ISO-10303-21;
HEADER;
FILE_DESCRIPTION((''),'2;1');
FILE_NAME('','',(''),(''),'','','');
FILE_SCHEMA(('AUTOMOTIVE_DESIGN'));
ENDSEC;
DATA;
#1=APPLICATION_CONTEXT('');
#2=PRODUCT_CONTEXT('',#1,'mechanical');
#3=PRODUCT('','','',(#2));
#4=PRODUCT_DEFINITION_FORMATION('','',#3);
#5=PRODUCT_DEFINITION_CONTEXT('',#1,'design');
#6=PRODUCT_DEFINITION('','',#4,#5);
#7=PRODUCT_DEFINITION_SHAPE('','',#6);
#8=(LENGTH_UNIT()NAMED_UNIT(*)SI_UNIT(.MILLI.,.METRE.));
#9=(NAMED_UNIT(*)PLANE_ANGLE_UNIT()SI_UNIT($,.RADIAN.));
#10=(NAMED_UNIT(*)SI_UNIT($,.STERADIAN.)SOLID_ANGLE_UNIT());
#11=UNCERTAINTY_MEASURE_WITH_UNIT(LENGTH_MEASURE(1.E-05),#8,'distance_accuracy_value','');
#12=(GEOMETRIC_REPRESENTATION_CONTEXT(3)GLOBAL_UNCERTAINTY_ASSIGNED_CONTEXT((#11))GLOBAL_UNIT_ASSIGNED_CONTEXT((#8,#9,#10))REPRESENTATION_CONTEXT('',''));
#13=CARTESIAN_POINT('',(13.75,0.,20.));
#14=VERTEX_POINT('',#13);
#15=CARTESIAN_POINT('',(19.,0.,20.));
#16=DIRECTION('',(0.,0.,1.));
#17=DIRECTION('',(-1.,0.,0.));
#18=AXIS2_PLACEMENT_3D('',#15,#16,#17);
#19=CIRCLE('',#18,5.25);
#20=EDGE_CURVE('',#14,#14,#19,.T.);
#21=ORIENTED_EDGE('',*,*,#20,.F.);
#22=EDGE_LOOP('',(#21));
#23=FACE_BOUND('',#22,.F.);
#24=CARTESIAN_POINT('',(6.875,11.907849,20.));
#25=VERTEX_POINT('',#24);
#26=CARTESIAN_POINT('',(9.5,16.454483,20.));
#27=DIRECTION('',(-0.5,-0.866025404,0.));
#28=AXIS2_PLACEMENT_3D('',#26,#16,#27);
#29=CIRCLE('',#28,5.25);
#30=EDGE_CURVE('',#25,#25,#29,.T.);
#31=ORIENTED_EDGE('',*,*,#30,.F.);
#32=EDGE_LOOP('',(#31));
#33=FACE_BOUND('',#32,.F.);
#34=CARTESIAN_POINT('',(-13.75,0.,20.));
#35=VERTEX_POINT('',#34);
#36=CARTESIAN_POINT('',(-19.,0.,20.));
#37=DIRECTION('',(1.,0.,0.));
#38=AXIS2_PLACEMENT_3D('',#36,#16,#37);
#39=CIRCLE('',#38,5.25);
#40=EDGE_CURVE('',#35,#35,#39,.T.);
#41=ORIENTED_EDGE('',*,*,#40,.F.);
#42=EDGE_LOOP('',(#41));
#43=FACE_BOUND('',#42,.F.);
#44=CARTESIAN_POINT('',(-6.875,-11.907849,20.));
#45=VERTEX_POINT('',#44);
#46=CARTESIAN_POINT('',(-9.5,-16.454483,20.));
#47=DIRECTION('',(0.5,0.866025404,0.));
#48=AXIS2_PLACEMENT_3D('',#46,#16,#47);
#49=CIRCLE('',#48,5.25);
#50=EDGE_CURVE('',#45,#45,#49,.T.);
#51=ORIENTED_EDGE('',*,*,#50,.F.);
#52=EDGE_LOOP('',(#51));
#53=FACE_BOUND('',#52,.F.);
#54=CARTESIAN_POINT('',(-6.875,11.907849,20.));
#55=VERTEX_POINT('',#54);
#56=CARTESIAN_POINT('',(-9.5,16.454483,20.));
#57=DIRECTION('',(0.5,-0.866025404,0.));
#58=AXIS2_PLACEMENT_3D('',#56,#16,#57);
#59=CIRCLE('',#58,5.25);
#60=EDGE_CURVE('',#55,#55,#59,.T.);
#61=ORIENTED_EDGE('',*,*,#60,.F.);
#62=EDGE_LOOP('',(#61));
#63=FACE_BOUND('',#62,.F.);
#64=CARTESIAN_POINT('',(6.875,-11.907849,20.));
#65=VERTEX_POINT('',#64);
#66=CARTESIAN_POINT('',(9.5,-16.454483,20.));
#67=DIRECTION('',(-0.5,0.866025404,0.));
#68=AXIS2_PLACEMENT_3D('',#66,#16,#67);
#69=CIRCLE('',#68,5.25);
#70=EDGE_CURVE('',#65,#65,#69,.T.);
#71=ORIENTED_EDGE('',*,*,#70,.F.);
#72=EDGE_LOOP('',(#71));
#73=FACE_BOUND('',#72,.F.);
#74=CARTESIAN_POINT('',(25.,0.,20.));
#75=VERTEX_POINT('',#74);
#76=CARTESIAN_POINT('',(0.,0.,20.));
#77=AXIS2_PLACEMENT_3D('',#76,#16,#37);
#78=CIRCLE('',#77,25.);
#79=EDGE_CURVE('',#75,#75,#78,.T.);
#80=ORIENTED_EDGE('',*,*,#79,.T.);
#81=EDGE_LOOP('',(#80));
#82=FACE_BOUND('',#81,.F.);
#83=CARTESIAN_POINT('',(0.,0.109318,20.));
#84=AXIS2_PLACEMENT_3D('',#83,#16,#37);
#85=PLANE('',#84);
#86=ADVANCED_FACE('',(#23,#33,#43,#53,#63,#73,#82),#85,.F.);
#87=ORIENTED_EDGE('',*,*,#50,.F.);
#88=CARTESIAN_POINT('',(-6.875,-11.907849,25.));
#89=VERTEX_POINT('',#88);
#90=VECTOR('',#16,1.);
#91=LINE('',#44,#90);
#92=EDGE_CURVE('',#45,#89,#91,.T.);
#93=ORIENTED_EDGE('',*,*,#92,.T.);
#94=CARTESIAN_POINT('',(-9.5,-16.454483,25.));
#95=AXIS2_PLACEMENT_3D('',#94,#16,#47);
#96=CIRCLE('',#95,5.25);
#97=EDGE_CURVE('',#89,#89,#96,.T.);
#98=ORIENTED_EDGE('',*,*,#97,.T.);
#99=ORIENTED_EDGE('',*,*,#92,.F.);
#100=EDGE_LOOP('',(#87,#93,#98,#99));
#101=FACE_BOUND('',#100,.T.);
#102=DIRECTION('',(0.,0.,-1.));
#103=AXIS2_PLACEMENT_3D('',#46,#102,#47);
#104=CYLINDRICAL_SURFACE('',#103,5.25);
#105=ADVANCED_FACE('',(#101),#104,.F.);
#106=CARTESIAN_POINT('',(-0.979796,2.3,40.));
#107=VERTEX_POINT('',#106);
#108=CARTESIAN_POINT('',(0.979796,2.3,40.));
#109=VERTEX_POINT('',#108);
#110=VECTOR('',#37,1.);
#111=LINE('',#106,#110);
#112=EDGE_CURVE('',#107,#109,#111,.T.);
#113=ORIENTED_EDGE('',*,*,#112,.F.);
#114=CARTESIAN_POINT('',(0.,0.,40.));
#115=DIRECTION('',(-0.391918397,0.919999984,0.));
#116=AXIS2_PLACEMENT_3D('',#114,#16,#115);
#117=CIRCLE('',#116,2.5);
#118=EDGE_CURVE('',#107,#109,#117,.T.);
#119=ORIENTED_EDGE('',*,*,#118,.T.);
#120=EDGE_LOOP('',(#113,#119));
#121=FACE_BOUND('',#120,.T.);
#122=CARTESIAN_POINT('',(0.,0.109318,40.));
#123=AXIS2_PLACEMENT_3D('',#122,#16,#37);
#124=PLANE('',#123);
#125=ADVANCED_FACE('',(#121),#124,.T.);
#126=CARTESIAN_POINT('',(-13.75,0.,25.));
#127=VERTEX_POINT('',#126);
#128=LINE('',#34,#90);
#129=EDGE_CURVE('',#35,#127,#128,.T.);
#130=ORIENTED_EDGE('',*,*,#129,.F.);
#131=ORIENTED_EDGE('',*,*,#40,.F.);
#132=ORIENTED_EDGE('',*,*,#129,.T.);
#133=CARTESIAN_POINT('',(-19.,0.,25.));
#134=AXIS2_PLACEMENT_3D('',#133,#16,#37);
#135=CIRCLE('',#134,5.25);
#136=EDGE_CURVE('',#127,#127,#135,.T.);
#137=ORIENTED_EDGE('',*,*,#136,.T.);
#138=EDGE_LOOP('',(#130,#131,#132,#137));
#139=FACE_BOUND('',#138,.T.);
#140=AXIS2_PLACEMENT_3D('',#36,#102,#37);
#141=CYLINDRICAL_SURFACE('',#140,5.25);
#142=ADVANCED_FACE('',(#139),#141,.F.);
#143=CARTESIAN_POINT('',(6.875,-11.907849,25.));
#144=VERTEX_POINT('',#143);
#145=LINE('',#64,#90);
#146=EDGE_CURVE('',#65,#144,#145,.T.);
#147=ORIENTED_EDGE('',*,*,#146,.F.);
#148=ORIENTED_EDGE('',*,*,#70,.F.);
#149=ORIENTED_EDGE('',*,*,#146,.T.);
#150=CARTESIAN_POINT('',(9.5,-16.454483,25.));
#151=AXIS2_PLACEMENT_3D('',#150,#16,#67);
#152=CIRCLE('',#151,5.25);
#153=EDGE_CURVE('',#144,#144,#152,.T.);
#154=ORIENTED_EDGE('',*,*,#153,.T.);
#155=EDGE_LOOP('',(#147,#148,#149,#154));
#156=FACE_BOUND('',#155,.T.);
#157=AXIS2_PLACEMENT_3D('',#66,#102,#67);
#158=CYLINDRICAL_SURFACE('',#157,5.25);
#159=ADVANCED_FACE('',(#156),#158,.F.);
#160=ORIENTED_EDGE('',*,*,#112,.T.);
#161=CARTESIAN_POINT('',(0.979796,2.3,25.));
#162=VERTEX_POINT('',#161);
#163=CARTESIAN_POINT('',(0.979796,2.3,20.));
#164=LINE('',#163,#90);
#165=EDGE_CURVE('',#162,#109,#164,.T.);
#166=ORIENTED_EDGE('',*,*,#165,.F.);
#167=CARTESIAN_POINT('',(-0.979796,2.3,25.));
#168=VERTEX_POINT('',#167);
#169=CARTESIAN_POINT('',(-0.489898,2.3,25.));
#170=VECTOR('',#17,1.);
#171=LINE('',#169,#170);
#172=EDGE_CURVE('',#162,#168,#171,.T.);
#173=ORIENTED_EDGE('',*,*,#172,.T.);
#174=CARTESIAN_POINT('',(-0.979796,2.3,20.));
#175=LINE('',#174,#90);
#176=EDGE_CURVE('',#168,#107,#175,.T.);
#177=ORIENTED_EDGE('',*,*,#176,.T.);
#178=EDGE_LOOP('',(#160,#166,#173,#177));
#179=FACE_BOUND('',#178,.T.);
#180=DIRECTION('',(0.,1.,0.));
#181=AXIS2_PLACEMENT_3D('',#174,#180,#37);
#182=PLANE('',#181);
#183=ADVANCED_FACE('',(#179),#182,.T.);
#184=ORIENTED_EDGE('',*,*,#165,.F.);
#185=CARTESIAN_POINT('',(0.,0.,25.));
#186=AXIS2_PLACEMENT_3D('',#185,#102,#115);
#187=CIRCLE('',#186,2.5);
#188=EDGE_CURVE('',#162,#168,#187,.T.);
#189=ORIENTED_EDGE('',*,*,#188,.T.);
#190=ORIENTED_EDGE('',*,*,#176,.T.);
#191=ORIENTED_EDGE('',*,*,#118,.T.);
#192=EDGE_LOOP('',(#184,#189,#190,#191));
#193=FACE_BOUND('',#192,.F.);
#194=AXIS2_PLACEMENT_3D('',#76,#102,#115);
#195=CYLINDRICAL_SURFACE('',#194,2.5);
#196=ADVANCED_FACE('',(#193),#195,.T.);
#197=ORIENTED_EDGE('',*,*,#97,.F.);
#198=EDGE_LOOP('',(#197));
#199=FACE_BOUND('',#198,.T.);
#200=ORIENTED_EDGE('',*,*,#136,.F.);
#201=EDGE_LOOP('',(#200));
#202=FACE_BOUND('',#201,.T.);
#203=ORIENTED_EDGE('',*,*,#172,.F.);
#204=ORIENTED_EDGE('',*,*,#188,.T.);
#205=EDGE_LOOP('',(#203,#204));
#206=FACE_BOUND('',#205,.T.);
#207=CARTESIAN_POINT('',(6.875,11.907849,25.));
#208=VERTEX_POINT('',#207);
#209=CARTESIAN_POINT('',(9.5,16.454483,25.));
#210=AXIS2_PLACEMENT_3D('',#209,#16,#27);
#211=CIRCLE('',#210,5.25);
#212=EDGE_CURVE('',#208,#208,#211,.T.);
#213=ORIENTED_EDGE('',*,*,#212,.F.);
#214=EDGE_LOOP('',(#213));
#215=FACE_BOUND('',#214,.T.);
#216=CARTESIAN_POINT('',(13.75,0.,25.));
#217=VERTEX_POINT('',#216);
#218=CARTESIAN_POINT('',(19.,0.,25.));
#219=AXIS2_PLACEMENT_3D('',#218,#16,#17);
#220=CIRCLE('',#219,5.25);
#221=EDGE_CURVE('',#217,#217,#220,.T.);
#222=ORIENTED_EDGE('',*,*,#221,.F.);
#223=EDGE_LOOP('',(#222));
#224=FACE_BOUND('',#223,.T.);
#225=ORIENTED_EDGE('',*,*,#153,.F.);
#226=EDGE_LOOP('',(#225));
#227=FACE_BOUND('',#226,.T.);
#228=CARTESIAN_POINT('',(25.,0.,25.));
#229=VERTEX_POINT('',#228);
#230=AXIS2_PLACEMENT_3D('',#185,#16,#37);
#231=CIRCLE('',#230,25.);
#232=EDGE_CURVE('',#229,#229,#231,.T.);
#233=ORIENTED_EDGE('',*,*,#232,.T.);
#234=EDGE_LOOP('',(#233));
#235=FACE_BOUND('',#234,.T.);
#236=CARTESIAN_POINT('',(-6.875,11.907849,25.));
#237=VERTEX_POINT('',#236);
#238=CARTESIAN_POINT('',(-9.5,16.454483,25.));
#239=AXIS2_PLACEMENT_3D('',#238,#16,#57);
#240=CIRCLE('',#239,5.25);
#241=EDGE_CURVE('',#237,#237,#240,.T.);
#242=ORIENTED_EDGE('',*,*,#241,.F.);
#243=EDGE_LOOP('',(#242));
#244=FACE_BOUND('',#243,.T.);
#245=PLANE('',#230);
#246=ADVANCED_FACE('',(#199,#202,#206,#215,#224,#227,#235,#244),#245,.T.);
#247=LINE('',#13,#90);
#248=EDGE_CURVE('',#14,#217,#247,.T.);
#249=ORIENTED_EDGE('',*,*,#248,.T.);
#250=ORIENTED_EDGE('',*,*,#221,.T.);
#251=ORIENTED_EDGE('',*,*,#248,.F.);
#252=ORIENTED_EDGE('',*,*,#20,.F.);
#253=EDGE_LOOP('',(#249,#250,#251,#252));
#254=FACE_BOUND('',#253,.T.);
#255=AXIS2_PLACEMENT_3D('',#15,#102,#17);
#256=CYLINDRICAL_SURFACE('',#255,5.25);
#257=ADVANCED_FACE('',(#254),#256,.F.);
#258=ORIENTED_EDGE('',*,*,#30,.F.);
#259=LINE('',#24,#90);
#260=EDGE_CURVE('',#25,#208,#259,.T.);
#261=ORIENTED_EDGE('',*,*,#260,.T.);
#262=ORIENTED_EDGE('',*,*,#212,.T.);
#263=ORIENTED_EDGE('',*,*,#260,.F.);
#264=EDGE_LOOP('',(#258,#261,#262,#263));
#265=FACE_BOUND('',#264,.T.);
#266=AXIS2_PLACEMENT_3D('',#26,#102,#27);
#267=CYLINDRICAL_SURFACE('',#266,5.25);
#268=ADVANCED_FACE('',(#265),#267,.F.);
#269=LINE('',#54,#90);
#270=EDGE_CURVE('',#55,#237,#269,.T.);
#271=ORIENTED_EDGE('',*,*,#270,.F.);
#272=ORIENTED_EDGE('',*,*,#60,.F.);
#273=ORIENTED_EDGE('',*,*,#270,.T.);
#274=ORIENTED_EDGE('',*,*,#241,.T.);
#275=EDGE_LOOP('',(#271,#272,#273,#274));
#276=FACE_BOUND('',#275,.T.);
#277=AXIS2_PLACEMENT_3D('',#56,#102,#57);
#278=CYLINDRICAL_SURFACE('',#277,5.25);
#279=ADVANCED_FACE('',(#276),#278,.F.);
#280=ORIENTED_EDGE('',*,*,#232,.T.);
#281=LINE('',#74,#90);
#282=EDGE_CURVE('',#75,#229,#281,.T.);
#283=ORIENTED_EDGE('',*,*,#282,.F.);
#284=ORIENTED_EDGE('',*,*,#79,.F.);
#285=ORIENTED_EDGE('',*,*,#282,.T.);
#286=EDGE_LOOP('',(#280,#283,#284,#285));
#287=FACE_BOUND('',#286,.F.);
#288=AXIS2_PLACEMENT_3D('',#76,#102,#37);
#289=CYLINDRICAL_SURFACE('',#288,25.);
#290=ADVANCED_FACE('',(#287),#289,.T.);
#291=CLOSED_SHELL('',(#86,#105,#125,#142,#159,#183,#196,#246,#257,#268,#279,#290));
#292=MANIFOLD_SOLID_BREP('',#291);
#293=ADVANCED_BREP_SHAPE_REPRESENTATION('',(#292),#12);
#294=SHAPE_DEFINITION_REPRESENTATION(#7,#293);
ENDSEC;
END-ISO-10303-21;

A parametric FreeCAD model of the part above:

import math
import FreeCAD as App
import Part
import Sketcher
from FreeCAD import Vector
Q = App.Units.Quantity

doc = App.newDocument("Part")
params = doc.addObject("Spreadsheet::Sheet", "Params")
for row, (alias, value) in enumerate([
    ("sketch1_diameter", "50 mm"),
    ("pad1_length", "5 mm"),
    ("sketch2_diameter", "10.5 mm"),
    ("pocket1_length", "5 mm"),
    ("sketch3_radius", "2.5 mm"),
    ("pad2_length", "20 mm"),
], start=1):
    params.set(f"A{row}", alias)
    params.set(f"B{row}", "=" + value)
    params.setAlias(f"B{row}", alias)

body = doc.addObject("PartDesign::Body", "Body")

# Sketch on XY plane
sketch1 = body.newObject("Sketcher::SketchObject", "Sketch")
sketch1.AttachmentSupport = (doc.getObject("XY_Plane"), [""])
sketch1.MapMode = "FlatFace"
sketch1.addGeometry(Part.Circle(Vector(0, 0, 0), Vector(0, 0, 1), 25), False)
sketch1.addConstraint(Sketcher.Constraint("Coincident", 0, 3, -1, 1))
sketch1.addConstraint(Sketcher.Constraint("Diameter", 0, Q("50 mm")))
sketch1.setExpression("Constraints[1]", "Params.sketch1_diameter")
pad1 = body.newObject("PartDesign::Pad", "Pad")
pad1.Profile = sketch1
pad1.setExpression("Length", "Params.pad1_length")

# Sketch on XY plane
sketch2 = body.newObject("Sketcher::SketchObject", "Sketch001")
sketch2.AttachmentSupport = (doc.getObject("XY_Plane"), [""])
sketch2.MapMode = "FlatFace"
sketch2.addGeometry(Part.Circle(Vector(-19, 0, 0), Vector(0, 0, 1), 5), False)
sketch2.addConstraint(Sketcher.Constraint("PointOnObject", 0, 3, -1))
sketch2.addConstraint(Sketcher.Constraint("Diameter", 0, Q("10.5 mm")))
sketch2.addConstraint(Sketcher.Constraint("DistanceX", 0, 3, -1, 1, Q("19 mm")))
sketch2.setExpression("Constraints[1]", "Params.sketch2_diameter")
pocket1 = body.newObject("PartDesign::Pocket", "Pocket")
pocket1.Profile = sketch2
pocket1.setExpression("Length", "Params.pocket1_length")
pocket1.Reversed = True

# Sketch on XY plane
sketch3 = body.newObject("Sketcher::SketchObject", "Sketch002")
sketch3.AttachmentSupport = (doc.getObject("XY_Plane"), [""])
sketch3.MapMode = "FlatFace"
sketch3.addGeometry(Part.ArcOfCircle(Part.Circle(Vector(0, 0, 0), Vector(0, 0, 1), 2.5), math.radians(113), math.radians(427)), False)
sketch3.addGeometry(Part.LineSegment(Vector(1, 2.3, 0), Vector(-1, 2.3, 0)), False)
sketch3.addConstraint(Sketcher.Constraint("Coincident", 0, 1, 1, 2))
sketch3.addConstraint(Sketcher.Constraint("Coincident", 1, 1, 0, 2))
sketch3.addConstraint(Sketcher.Constraint("Horizontal", 1))
sketch3.addConstraint(Sketcher.Constraint("Coincident", 0, 3, -1, 1))
sketch3.addConstraint(Sketcher.Constraint("Radius", 0, Q("2.5 mm")))
sketch3.addConstraint(Sketcher.Constraint("DistanceY", -1, 1, 0, 1, Q("2.3 mm")))
sketch3.setExpression("Constraints[4]", "Params.sketch3_radius")
pad2 = body.newObject("PartDesign::Pad", "Pad001")
pad2.Profile = sketch3
pad2.setExpression("Length", "Params.pad2_length")
doc.recompute()

polarpattern = body.newObject("PartDesign::PolarPattern", "PolarPattern")
polarpattern.Originals = [pocket1]
polarpattern.Axis = (doc.getObject("Z_Axis"), [""])
polarpattern.Angle = 360
polarpattern.Occurrences = 6
body.Tip = polarpattern
body2 = doc.addObject("PartDesign::Body", "Body001")
doc.recompute()

body.Placement = App.Placement(Vector(0, 0, 20), App.Rotation(Vector(0, 0, 1), 0))
boolean = body2.newObject("PartDesign::Boolean", "Boolean")
boolean.Type = "Fuse"
boolean.addObjects([body])

doc.recompute()
